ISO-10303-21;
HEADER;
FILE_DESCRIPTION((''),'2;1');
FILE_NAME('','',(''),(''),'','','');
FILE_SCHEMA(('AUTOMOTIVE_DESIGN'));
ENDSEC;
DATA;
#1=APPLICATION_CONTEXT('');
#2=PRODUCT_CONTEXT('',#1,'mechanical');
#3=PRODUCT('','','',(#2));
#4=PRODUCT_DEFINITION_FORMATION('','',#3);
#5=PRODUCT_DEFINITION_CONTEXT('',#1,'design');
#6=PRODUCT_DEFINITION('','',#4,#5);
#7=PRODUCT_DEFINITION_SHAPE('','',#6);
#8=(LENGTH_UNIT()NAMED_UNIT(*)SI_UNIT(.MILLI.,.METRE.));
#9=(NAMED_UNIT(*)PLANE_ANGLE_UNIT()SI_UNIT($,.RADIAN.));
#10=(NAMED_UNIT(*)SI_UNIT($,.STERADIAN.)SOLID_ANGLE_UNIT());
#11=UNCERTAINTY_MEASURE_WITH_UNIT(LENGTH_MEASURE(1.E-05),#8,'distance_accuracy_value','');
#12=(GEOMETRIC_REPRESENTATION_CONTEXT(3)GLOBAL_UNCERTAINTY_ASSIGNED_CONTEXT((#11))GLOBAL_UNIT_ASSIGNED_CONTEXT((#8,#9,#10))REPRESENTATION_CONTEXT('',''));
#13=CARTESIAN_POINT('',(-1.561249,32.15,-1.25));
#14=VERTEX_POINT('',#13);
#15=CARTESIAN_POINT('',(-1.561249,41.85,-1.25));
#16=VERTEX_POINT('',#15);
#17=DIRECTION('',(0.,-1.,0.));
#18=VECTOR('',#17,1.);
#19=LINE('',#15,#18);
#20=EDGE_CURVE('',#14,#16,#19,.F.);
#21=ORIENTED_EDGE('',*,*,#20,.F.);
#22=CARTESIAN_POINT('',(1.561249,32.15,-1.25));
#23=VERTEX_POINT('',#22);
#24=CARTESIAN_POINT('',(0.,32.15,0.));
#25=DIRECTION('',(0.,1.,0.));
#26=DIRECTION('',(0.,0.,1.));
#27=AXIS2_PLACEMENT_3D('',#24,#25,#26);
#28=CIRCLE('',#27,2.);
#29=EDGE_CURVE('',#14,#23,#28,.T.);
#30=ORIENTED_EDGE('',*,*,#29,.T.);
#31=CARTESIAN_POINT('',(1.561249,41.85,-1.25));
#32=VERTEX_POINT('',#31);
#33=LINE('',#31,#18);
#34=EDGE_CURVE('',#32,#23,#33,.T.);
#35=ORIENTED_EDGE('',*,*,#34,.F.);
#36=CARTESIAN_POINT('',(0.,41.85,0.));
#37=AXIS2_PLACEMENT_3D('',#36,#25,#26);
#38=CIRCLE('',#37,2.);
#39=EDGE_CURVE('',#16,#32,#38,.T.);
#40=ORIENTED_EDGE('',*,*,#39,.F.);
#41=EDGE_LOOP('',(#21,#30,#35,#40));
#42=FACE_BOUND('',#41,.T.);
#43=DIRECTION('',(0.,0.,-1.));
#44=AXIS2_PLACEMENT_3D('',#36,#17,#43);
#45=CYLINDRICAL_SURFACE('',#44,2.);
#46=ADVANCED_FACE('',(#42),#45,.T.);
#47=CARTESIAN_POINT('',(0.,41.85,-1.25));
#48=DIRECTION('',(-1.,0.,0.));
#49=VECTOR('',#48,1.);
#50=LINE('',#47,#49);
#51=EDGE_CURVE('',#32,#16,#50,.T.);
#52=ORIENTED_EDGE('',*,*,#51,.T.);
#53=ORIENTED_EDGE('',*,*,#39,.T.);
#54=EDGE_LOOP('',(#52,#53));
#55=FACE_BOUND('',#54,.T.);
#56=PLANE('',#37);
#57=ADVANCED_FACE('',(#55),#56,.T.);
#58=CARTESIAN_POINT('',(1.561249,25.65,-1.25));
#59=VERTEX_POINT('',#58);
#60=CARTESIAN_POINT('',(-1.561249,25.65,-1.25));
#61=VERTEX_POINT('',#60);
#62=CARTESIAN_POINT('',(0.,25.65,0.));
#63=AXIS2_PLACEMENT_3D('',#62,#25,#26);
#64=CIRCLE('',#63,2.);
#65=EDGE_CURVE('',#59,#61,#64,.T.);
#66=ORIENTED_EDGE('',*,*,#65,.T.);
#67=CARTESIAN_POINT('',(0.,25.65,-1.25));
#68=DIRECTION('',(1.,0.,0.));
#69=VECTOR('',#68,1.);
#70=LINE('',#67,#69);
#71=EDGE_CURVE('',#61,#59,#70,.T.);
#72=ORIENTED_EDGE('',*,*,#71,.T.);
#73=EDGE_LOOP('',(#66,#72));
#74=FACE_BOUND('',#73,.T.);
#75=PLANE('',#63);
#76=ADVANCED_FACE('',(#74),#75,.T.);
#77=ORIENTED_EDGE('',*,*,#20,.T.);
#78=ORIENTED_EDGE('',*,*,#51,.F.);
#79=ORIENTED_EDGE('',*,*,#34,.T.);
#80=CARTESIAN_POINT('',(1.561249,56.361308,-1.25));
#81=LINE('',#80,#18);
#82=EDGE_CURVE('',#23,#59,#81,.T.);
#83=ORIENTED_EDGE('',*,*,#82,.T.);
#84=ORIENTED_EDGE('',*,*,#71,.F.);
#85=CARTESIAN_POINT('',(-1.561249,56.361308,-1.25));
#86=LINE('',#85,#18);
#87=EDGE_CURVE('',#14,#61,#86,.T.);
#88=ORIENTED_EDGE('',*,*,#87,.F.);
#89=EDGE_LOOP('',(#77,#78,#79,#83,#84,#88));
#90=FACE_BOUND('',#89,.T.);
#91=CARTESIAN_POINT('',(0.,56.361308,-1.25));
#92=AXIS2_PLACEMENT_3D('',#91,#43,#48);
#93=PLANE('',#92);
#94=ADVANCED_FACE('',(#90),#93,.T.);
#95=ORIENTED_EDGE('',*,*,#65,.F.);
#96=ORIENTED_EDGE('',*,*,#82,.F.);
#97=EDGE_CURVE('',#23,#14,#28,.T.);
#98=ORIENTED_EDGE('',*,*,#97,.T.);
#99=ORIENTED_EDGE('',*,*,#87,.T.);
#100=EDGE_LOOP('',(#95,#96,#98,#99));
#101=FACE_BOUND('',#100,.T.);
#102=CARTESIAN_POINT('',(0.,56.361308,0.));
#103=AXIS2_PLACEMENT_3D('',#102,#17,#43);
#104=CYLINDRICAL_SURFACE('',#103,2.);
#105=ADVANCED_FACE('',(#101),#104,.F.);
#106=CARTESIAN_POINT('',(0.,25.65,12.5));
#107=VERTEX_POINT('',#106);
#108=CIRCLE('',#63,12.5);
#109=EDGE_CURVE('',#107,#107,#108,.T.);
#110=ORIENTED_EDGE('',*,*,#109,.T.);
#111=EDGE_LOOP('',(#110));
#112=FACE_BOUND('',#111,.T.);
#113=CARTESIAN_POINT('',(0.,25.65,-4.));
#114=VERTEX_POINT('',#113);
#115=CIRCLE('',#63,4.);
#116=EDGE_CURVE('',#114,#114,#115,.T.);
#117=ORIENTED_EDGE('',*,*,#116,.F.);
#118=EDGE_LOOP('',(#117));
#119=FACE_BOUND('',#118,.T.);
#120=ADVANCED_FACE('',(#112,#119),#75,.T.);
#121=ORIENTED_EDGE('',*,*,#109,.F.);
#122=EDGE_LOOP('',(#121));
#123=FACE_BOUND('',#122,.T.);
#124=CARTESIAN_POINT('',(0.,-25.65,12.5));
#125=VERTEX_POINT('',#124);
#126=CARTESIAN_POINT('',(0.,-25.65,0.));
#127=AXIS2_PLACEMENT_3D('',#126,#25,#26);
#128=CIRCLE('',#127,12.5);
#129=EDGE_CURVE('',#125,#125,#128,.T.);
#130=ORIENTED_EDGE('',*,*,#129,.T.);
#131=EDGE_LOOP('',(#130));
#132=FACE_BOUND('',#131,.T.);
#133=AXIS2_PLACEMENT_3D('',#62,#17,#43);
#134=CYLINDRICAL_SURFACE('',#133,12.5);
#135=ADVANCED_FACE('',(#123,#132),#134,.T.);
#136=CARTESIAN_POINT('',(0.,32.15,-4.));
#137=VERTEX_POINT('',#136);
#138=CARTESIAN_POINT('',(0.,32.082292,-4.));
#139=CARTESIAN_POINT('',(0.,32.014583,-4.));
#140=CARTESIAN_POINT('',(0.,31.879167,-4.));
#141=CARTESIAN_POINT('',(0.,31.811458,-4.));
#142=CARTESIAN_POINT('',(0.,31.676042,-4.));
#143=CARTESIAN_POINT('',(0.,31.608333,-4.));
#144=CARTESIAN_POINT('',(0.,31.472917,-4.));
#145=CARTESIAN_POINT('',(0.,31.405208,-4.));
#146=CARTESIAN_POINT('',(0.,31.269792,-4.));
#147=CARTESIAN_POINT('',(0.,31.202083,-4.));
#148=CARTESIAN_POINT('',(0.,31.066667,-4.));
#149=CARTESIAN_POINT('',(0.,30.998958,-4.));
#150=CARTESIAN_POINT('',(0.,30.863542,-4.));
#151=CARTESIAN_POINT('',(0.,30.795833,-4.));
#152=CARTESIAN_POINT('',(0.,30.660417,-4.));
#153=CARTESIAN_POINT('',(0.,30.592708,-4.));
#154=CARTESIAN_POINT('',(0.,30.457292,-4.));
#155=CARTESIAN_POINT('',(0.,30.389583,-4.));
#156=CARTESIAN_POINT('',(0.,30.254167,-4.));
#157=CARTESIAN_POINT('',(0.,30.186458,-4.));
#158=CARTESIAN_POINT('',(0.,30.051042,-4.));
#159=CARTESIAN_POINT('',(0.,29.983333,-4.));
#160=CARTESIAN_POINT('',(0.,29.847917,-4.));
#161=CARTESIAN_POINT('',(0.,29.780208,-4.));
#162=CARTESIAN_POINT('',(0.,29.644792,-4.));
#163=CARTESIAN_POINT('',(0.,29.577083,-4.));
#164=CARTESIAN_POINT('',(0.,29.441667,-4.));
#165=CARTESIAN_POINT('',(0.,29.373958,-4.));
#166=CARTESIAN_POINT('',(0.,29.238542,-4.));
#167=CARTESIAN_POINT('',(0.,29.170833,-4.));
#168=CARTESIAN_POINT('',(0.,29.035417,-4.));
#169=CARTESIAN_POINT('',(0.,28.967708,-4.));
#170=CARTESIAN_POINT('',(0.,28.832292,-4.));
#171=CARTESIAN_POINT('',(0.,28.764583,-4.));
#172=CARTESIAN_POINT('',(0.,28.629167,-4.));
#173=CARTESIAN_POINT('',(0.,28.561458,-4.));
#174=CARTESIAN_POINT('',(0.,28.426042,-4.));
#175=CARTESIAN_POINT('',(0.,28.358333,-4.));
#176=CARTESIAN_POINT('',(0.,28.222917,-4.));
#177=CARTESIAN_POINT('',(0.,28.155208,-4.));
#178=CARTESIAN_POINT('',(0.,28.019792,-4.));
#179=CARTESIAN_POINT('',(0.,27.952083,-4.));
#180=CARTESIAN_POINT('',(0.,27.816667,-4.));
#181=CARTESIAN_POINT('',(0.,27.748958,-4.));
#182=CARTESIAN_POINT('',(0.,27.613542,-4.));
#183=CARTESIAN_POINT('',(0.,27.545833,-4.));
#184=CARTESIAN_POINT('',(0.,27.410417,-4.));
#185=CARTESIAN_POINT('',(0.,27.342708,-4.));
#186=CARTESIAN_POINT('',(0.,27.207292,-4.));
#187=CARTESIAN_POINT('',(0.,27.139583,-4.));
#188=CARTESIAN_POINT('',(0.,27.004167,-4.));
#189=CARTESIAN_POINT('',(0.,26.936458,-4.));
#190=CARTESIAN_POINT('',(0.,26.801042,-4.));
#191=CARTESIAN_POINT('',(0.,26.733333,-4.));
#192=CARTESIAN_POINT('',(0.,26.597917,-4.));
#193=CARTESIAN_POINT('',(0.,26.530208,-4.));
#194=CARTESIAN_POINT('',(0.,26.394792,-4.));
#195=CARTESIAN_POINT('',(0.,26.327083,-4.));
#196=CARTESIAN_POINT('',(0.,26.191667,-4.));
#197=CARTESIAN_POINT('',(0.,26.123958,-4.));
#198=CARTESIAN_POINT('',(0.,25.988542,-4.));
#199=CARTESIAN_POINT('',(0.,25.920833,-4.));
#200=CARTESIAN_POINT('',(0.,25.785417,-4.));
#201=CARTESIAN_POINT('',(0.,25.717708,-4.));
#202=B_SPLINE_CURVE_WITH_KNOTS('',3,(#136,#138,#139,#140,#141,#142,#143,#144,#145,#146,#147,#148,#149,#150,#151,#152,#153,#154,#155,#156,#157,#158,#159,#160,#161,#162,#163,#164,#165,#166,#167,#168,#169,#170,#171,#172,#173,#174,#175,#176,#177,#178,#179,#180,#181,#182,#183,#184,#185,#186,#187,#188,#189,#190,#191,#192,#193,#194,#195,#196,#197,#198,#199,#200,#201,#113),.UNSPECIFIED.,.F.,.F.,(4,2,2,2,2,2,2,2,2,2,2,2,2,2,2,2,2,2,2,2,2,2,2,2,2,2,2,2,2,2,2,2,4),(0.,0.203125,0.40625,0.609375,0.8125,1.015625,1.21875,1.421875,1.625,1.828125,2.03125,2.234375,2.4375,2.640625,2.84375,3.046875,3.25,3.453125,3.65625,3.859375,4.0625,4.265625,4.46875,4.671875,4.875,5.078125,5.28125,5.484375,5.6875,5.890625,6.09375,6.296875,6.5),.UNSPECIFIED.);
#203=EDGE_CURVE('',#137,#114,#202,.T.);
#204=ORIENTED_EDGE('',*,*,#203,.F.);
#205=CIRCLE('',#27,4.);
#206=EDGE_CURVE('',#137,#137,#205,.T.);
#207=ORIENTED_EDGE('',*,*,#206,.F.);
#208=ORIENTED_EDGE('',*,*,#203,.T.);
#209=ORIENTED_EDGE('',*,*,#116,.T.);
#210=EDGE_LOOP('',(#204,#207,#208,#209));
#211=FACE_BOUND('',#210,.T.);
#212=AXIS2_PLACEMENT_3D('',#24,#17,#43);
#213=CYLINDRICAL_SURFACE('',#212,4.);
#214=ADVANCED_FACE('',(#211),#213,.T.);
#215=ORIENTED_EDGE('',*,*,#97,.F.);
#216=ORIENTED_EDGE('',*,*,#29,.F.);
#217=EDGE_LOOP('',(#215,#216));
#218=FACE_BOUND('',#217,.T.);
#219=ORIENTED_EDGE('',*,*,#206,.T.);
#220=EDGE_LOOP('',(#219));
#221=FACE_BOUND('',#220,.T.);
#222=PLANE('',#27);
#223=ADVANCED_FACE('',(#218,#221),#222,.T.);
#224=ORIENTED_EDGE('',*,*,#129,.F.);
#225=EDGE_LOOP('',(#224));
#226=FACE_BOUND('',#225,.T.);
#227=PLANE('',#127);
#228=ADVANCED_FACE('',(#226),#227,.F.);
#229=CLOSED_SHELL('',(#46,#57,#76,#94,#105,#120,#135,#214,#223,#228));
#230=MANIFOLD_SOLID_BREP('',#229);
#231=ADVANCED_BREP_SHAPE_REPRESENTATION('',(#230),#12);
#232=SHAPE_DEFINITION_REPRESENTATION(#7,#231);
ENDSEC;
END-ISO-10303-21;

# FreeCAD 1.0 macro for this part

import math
import FreeCAD as App
import Part
import Sketcher
Q = App.Units.Quantity

doc = App.newDocument("Part")
body = doc.addObject("PartDesign::Body", "Body")

# Sketch on XZ plane
sketch1 = doc.addObject("Sketcher::SketchObject", "Sketch")
body.addObject(sketch1)
sketch1.AttachmentSupport = (doc.XZ_Plane, [""])
sketch1.MapMode = "FlatFace"
sketch1.addGeometry(Part.Circle(App.Vector(0, 0, 0), App.Vector(0, 0, 1), 12), False)
sketch1.addConstraint([
    Sketcher.Constraint("Coincident", 0, 3, -1, 1),
    Sketcher.Constraint("Diameter", 0, Q("25 mm")),
])
pad1 = doc.addObject("PartDesign::Pad", "Pad")
body.addObject(pad1)
pad1.Profile = sketch1
pad1.Length = 51.3
pad1.Midplane = True

# Sketch on XZ plane
sketch2 = doc.addObject("Sketcher::SketchObject", "Sketch001")
body.addObject(sketch2)
sketch2.AttachmentSupport = (doc.XZ_Plane, [""])
sketch2.MapMode = "FlatFace"
sketch2.AttachmentOffset = App.Placement(App.Vector(0, 0, -25.65), App.Rotation())
sketch2.addGeometry([
    Part.ArcOfCircle(Part.Circle(App.Vector(0, 0, 0), App.Vector(0, 0, 1), 2), math.radians(-141), math.radians(-39)),
    Part.ArcOfCircle(Part.Circle(App.Vector(0, 0, 0), App.Vector(0, 0, 1), 2), math.radians(0), math.radians(219)),
    Part.ArcOfCircle(Part.Circle(App.Vector(0, 0, 0), App.Vector(0, 0, 1), 2), math.radians(-39), math.radians(0)),
], False)
sketch2.addConstraint([
    Sketcher.Constraint("Tangent", 0, 1, 1, 2),
    Sketcher.Constraint("Tangent", 1, 1, 2, 2),
    Sketcher.Constraint("Tangent", 2, 1, 0, 2),
    Sketcher.Constraint("Coincident", 0, 3, -1, 1),
    Sketcher.Constraint("PointOnObject", 1, 1, -1),
    Sketcher.Constraint("Horizontal", 0, 1, 2, 1),
    Sketcher.Constraint("Radius", 0, Q("2 mm")),
    Sketcher.Constraint("DistanceY", 0, 1, -1, 1, Q("1.25 mm")),
])
pad2 = doc.addObject("PartDesign::Pad", "Pad001")
body.addObject(pad2)
pad2.Profile = sketch2
pad2.Length = 16.2
pad2.Reversed = True

# Sketch on XZ plane
sketch3 = doc.addObject("Sketcher::SketchObject", "Sketch002")
body.addObject(sketch3)
sketch3.AttachmentSupport = (doc.XZ_Plane, [""])
sketch3.MapMode = "FlatFace"
sketch3.AttachmentOffset = App.Placement(App.Vector(0, 0, -25.65), App.Rotation())
sketch3.addGeometry([
    Part.Circle(App.Vector(0, 0, 0), App.Vector(0, 0, 1), 4),
    Part.Circle(App.Vector(0, 0, 0), App.Vector(0, 0, 1), 2),
], False)
sketch3.addConstraint([
    Sketcher.Constraint("Coincident", 0, 3, -1, 1),
    Sketcher.Constraint("Coincident", 1, 3, -1, 1),
    Sketcher.Constraint("Diameter", 0, Q("8 mm")),
    Sketcher.Constraint("Diameter", 1, Q("4 mm")),
])
pad3 = doc.addObject("PartDesign::Pad", "Pad002")
body.addObject(pad3)
pad3.Profile = sketch3
pad3.Length = 6.5
pad3.Reversed = True

# Sketch on XZ plane
sketch4 = doc.addObject("Sketcher::SketchObject", "Sketch003")
body.addObject(sketch4)
sketch4.AttachmentSupport = (doc.XZ_Plane, [""])
sketch4.MapMode = "FlatFace"
sketch4.AttachmentOffset = App.Placement(App.Vector(0, 0, -25.65), App.Rotation())
sketch4.addGeometry([
    Part.ArcOfCircle(Part.Circle(App.Vector(0, 0, 0), App.Vector(0, 0, 1), 2), math.radians(-141), math.radians(-39)),
    Part.LineSegment(App.Vector(-1.6, -1.2, 0), App.Vector(1.6, -1.2, 0)),
], False)
sketch4.addConstraint([
    Sketcher.Constraint("Coincident", 0, 1, 1, 1),
    Sketcher.Constraint("Coincident", 1, 2, 0, 2),
    Sketcher.Constraint("Horizontal", 1),
    Sketcher.Constraint("Coincident", 0, 3, -1, 1),
    Sketcher.Constraint("Radius", 0, Q("2 mm")),
    Sketcher.Constraint("DistanceY", 0, 1, -1, 1, Q("1.25 mm")),
])
pocket1 = doc.addObject("PartDesign::Pocket", "Pocket")
body.addObject(pocket1)
pocket1.Profile = sketch4
pocket1.Length = 17

doc.recompute()
